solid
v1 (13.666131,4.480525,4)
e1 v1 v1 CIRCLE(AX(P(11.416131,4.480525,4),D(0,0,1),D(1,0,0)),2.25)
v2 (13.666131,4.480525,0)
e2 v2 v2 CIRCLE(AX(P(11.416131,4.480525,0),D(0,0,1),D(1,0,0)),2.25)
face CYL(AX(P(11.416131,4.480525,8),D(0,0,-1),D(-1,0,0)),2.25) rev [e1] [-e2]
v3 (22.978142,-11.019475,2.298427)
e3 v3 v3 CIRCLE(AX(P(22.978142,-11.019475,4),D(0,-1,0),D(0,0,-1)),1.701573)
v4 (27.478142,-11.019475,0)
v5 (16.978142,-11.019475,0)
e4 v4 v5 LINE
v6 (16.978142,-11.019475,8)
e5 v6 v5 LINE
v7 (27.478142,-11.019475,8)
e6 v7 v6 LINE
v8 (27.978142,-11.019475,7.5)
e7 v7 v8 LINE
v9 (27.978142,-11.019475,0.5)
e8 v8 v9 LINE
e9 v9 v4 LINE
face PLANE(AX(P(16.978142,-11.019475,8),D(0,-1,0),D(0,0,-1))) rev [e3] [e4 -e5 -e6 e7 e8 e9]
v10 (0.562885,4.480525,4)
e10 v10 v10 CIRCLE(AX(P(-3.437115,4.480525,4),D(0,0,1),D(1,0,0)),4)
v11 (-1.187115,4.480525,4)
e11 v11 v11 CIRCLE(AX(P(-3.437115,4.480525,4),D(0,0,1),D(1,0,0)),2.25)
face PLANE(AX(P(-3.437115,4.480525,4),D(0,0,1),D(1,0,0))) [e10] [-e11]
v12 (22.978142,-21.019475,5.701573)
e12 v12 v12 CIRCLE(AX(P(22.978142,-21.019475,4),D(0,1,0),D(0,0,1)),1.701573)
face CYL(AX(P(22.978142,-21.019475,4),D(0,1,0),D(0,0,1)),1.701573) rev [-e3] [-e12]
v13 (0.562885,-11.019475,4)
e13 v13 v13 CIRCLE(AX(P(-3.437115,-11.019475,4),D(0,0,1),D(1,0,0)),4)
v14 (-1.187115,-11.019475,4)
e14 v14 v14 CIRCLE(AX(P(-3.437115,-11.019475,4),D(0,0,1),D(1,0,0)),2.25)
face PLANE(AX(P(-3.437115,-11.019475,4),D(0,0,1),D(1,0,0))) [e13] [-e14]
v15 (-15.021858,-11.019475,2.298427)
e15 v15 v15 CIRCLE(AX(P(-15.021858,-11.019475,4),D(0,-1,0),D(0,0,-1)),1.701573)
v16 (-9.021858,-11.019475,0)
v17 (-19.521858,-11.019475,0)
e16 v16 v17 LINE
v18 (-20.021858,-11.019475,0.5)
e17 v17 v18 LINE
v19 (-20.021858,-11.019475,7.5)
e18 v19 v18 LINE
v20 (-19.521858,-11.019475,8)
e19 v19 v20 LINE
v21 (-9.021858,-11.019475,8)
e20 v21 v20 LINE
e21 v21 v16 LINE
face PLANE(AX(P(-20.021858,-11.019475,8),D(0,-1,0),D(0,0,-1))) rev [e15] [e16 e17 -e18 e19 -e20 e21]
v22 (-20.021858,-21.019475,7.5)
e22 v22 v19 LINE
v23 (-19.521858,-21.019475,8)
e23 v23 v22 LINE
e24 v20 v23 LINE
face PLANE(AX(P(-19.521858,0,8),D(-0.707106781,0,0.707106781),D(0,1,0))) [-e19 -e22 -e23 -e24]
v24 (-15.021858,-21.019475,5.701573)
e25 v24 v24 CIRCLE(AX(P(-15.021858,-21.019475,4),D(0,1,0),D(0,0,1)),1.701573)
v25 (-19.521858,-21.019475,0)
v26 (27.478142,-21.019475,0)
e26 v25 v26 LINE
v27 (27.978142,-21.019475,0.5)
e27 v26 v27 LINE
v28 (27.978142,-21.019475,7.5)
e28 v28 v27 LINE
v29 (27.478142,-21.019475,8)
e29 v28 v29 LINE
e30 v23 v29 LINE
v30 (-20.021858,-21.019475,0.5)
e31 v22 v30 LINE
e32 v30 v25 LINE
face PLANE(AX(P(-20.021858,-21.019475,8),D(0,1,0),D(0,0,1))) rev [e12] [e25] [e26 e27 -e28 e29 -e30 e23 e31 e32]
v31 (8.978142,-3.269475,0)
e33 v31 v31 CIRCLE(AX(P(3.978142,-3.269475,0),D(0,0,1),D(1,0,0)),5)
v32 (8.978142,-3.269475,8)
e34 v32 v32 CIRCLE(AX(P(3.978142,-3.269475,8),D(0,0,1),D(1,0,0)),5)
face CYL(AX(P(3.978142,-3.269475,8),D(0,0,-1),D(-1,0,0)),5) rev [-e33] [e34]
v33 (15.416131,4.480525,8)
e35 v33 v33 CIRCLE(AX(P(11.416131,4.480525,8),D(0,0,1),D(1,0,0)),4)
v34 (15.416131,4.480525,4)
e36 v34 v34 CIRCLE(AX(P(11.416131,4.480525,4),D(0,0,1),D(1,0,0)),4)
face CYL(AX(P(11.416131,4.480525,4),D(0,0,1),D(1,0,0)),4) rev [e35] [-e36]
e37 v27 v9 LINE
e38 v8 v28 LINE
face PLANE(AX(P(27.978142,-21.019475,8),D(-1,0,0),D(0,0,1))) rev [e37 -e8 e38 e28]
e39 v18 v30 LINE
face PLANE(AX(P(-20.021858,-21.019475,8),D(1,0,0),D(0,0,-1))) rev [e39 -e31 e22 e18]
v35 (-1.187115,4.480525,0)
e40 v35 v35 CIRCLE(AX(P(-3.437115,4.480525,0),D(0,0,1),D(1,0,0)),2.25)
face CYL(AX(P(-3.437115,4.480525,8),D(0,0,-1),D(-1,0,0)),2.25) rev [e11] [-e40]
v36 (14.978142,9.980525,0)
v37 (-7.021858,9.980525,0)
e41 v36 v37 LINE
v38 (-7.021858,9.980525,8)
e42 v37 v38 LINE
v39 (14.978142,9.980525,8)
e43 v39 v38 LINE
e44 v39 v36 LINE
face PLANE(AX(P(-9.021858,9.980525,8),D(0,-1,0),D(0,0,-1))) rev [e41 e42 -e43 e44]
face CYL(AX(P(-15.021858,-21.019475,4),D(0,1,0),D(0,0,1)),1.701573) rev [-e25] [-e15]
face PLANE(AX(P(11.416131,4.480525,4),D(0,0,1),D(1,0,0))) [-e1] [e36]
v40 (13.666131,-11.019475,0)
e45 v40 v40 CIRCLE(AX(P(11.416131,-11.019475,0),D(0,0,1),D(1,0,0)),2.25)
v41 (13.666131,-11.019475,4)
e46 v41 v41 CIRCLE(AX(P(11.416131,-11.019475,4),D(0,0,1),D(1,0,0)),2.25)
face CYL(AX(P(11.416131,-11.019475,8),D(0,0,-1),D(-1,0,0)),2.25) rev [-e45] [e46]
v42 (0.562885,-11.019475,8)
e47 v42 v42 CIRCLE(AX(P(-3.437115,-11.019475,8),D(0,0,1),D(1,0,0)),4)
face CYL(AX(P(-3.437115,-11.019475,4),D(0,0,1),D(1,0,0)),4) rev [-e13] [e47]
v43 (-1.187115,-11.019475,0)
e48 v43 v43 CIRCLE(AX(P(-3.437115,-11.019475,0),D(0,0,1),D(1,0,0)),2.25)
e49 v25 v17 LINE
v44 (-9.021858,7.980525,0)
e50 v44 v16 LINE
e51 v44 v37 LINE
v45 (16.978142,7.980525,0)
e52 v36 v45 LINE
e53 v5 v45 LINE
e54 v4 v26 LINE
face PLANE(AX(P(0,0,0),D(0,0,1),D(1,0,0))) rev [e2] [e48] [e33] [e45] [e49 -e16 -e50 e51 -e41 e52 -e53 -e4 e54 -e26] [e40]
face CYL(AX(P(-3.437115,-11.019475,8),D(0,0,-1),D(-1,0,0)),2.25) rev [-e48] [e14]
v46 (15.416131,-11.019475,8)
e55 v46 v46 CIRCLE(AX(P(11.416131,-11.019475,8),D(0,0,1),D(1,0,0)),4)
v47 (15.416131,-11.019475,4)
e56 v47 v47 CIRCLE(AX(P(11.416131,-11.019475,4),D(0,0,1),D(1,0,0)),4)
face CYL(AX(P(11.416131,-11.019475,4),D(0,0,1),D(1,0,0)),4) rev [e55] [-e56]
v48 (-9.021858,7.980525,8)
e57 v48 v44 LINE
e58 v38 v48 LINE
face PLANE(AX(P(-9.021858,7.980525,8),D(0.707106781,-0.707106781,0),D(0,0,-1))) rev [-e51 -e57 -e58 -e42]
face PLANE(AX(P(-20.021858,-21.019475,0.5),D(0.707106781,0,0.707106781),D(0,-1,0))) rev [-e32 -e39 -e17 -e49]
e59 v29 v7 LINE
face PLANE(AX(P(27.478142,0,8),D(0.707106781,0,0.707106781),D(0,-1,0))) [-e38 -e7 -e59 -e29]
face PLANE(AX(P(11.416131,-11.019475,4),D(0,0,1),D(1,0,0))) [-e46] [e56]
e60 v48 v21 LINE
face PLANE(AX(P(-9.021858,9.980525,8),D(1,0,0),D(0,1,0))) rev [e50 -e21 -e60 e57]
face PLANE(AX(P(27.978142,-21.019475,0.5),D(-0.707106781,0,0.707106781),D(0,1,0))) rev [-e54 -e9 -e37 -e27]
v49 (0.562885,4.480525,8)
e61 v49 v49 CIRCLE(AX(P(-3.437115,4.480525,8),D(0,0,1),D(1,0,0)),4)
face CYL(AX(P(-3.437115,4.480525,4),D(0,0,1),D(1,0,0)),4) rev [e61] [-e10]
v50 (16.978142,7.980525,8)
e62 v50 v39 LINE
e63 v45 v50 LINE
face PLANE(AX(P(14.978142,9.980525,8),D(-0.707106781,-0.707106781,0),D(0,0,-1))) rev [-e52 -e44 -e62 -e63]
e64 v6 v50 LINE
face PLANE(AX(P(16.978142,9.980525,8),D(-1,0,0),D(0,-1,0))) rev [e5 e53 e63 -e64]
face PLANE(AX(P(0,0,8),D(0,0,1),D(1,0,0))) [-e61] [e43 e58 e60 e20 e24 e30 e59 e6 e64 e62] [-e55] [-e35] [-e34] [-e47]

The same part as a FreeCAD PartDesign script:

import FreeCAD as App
import Part
import Sketcher
from FreeCAD import Vector
Q = App.Units.Quantity


def edges_at(feature, points):
    """Names of the edges that pass closest to the given points."""
    edges = feature.Shape.Edges
    near = lambda p: min(range(len(edges)), key=lambda i: edges[i].distToShape(Part.Vertex(*p))[0])
    return sorted({f"Edge{near(p) + 1}" for p in points})

doc = App.newDocument("Part")
params = doc.addObject("Spreadsheet::Sheet", "Params")
for row, (alias, value) in enumerate([
    ("sketch1_diameter", "10 mm"),
    ("sketch1_diameter2", "4.5 mm"),
    ("sketch1_width", "11 mm"),
    ("sketch1_width2", "26 mm"),
    ("sketch1_height", "21 mm"),
    ("pad1_length", "8 mm"),
    ("sketch2_diameter", "8 mm"),
    ("pocket1_length", "4 mm"),
    ("chamfer_size", "2 mm"),
    ("chamfer2_size", "0.5 mm"),
], start=1):
    params.set(f"A{row}", alias)
    params.set(f"B{row}", "=" + value)
    params.setAlias(f"B{row}", alias)

body = doc.addObject("PartDesign::Body", "Body")

# Sketch on XY plane
sketch1 = body.newObject("Sketcher::SketchObject", "Sketch")
sketch1.AttachmentSupport = (doc.getObject("XY_Plane"), [""])
sketch1.MapMode = "FlatFace"
sketch1.addGeometry(Part.LineSegment(Vector(27.978142, -11.019475, 0), Vector(16.978142, -11.019475, 0)), False)
sketch1.addGeometry(Part.LineSegment(Vector(16.978142, -11.019475, 0), Vector(16.978142, 9.980525, 0)), False)
sketch1.addGeometry(Part.LineSegment(Vector(16.978142, 9.980525, 0), Vector(-9.021858, 9.980525, 0)), False)
sketch1.addGeometry(Part.LineSegment(Vector(-9.021858, 9.980525, 0), Vector(-9.021858, -11.019475, 0)), False)
sketch1.addGeometry(Part.LineSegment(Vector(-9.021858, -11.019475, 0), Vector(-20.021858, -11.019475, 0)), False)
sketch1.addGeometry(Part.LineSegment(Vector(-20.021858, -11.019475, 0), Vector(-20.021858, -21.019475, 0)), False)
sketch1.addGeometry(Part.LineSegment(Vector(-20.021858, -21.019475, 0), Vector(27.978142, -21.019475, 0)), False)
sketch1.addGeometry(Part.LineSegment(Vector(27.978142, -21.019475, 0), Vector(27.978142, -11.019475, 0)), False)
sketch1.addGeometry(Part.Circle(Vector(11.416131, -11.019475, 0), Vector(0, 0, 1), 2.25), False)
sketch1.addGeometry(Part.Circle(Vector(-3.437115, -11.019475, 0), Vector(0, 0, 1), 2.25), False)
sketch1.addGeometry(Part.Circle(Vector(11.416131, 4.480525, 0), Vector(0, 0, 1), 2.25), False)
sketch1.addGeometry(Part.Circle(Vector(3.978142, -3.269475, 0), Vector(0, 0, 1), 5), False)
sketch1.addGeometry(Part.Circle(Vector(-3.437115, 4.480525, 0), Vector(0, 0, 1), 2.25), False)
sketch1.addConstraint(Sketcher.Constraint("Coincident", 0, 2, 1, 1))
sketch1.addConstraint(Sketcher.Constraint("Coincident", 1, 2, 2, 1))
sketch1.addConstraint(Sketcher.Constraint("Coincident", 2, 2, 3, 1))
sketch1.addConstraint(Sketcher.Constraint("Coincident", 3, 2, 4, 1))
sketch1.addConstraint(Sketcher.Constraint("Coincident", 4, 2, 5, 1))
sketch1.addConstraint(Sketcher.Constraint("Coincident", 5, 2, 6, 1))
sketch1.addConstraint(Sketcher.Constraint("Coincident", 6, 2, 7, 1))
sketch1.addConstraint(Sketcher.Constraint("Coincident", 7, 2, 0, 1))
sketch1.addConstraint(Sketcher.Constraint("Horizontal", 0))
sketch1.addConstraint(Sketcher.Constraint("Vertical", 1))
sketch1.addConstraint(Sketcher.Constraint("Horizontal", 2))
sketch1.addConstraint(Sketcher.Constraint("Vertical", 3))
sketch1.addConstraint(Sketcher.Constraint("Horizontal", 4))
sketch1.addConstraint(Sketcher.Constraint("Vertical", 5))
sketch1.addConstraint(Sketcher.Constraint("Horizontal", 6))
sketch1.addConstraint(Sketcher.Constraint("Vertical", 7))
sketch1.addConstraint(Sketcher.Constraint("Equal", 8, 9))
sketch1.addConstraint(Sketcher.Constraint("Equal", 9, 10))
sketch1.addConstraint(Sketcher.Constraint("Equal", 10, 12))
sketch1.addConstraint(Sketcher.Constraint("Horizontal", 8, 3, 9, 3))
sketch1.addConstraint(Sketcher.Constraint("Horizontal", 10, 3, 12, 3))
sketch1.addConstraint(Sketcher.Constraint("Horizontal", 9, 3, 0, 2))
sketch1.addConstraint(Sketcher.Constraint("Horizontal", 0, 2, 3, 2))
sketch1.addConstraint(Sketcher.Constraint("Vertical", 8, 3, 10, 3))
sketch1.addConstraint(Sketcher.Constraint("Vertical", 9, 3, 12, 3))
sketch1.addConstraint(Sketcher.Constraint("Equal", 0, 4))
sketch1.addConstraint(Sketcher.Constraint("Diameter", 11, Q("10 mm")))
sketch1.addConstraint(Sketcher.Constraint("Diameter", 8, Q("4.5 mm")))
sketch1.addConstraint(Sketcher.Constraint("DistanceX", 0, 2, 0, 1, Q("11 mm")))
sketch1.addConstraint(Sketcher.Constraint("DistanceX", 2, 2, 2, 1, Q("26 mm")))
sketch1.addConstraint(Sketcher.Constraint("DistanceY", 1, 1, 1, 2, Q("21 mm")))
sketch1.addConstraint(Sketcher.Constraint("DistanceY", 5, 2, 5, 1, Q("10 mm")))
sketch1.addConstraint(Sketcher.Constraint("DistanceX", 11, 3, 0, 2, Q("13 mm")))
sketch1.addConstraint(Sketcher.Constraint("DistanceY", 8, 3, 10, 3, Q("15.5 mm")))
sketch1.addConstraint(Sketcher.Constraint("DistanceY", 9, 3, 11, 3, Q("7.75 mm")))
sketch1.addConstraint(Sketcher.Constraint("DistanceX", -1, 1, 8, 3, Q("11.416131 mm")))
sketch1.addConstraint(Sketcher.Constraint("DistanceX", 11, 3, 8, 3, Q("7.437989 mm")))
sketch1.addConstraint(Sketcher.Constraint("DistanceY", 8, 3, -1, 1, Q("11.019475 mm")))
sketch1.addConstraint(Sketcher.Constraint("DistanceX", 9, 3, -1, 1, Q("3.437115 mm")))
sketch1.setExpression("Constraints[26]", "Params.sketch1_diameter")
sketch1.setExpression("Constraints[27]", "Params.sketch1_diameter2")
sketch1.setExpression("Constraints[28]", "Params.sketch1_width")
sketch1.setExpression("Constraints[29]", "Params.sketch1_width2")
sketch1.setExpression("Constraints[30]", "Params.sketch1_height")
pad1 = body.newObject("PartDesign::Pad", "Pad")
pad1.Profile = sketch1
pad1.setExpression("Length", "Params.pad1_length")

# Sketch on XY plane
sketch2 = body.newObject("Sketcher::SketchObject", "Sketch001")
sketch2.AttachmentSupport = (doc.getObject("XY_Plane"), [""])
sketch2.MapMode = "FlatFace"
sketch2.AttachmentOffset = App.Placement(Vector(0, 0, 8), App.Rotation())
sketch2.addGeometry(Part.Circle(Vector(-3.437115, 4.480525, 0), Vector(0, 0, 1), 4), False)
sketch2.addGeometry(Part.Circle(Vector(11.416131, 4.480525, 0), Vector(0, 0, 1), 4), False)
sketch2.addGeometry(Part.Circle(Vector(-3.437115, -11.019475, 0), Vector(0, 0, 1), 4), False)
sketch2.addGeometry(Part.Circle(Vector(11.416131, -11.019475, 0), Vector(0, 0, 1), 4), False)
sketch2.addConstraint(Sketcher.Constraint("Equal", 0, 1))
sketch2.addConstraint(Sketcher.Constraint("Equal", 1, 2))
sketch2.addConstraint(Sketcher.Constraint("Equal", 2, 3))
sketch2.addConstraint(Sketcher.Constraint("Horizontal", 0, 3, 1, 3))
sketch2.addConstraint(Sketcher.Constraint("Horizontal", 2, 3, 3, 3))
sketch2.addConstraint(Sketcher.Constraint("Vertical", 0, 3, 2, 3))
sketch2.addConstraint(Sketcher.Constraint("Vertical", 1, 3, 3, 3))
sketch2.addConstraint(Sketcher.Constraint("Diameter", 0, Q("8 mm")))
sketch2.addConstraint(Sketcher.Constraint("DistanceY", 2, 3, 0, 3, Q("15.5 mm")))
sketch2.addConstraint(Sketcher.Constraint("DistanceX", -1, 1, 1, 3, Q("11.416131 mm")))
sketch2.addConstraint(Sketcher.Constraint("DistanceX", 0, 3, -1, 1, Q("3.437115 mm")))
sketch2.addConstraint(Sketcher.Constraint("DistanceY", -1, 1, 0, 3, Q("4.480525 mm")))
sketch2.setExpression("Constraints[7]", "Params.sketch2_diameter")
pocket1 = body.newObject("PartDesign::Pocket", "Pocket")
pocket1.Profile = sketch2
pocket1.setExpression("Length", "Params.pocket1_length")

# Sketch on XZ plane
sketch3 = body.newObject("Sketcher::SketchObject", "Sketch002")
sketch3.AttachmentSupport = (doc.getObject("XZ_Plane"), [""])
sketch3.MapMode = "FlatFace"
sketch3.AttachmentOffset = App.Placement(Vector(0, 0, -9.980525), App.Rotation())
sketch3.addGeometry(Part.Circle(Vector(-15.021858, 4, 0), Vector(0, 0, 1), 1.701573), False)
sketch3.addGeometry(Part.Circle(Vector(22.978142, 4, 0), Vector(0, 0, 1), 1.701573), False)
sketch3.addConstraint(Sketcher.Constraint("Equal", 0, 1))
sketch3.addConstraint(Sketcher.Constraint("Horizontal", 0, 3, 1, 3))
sketch3.addConstraint(Sketcher.Constraint("DistanceY", -1, 1, 0, 3, Q("4 mm")))
sketch3.addConstraint(Sketcher.Constraint("DistanceX", 0, 3, 1, 3, Q("38 mm")))
sketch3.addConstraint(Sketcher.Constraint("Diameter", 0, Q("3.403145 mm")))
sketch3.addConstraint(Sketcher.Constraint("DistanceX", 0, 3, -1, 1, Q("15.021858 mm")))
pocket2 = body.newObject("PartDesign::Pocket", "Pocket001")
pocket2.Profile = sketch3
pocket2.Type = "ThroughAll"
pocket2.Reversed = True
doc.recompute()

chamfer = body.newObject("PartDesign::Chamfer", "Chamfer")
chamfer.Base = (pocket2, edges_at(pocket2, [(-9.022, 9.981, 4), (16.978, 9.981, 4)]))
chamfer.setExpression("Size", "Params.chamfer_size")
doc.recompute()

chamfer2 = body.newObject("PartDesign::Chamfer", "Chamfer001")
chamfer2.Base = (chamfer, edges_at(chamfer, [
    (-20.022, -16.019, 8),
    (27.978, -16.019, 8),
    (27.978, -16.019, 0),
    (-20.022, -16.019, 0),
]))
chamfer2.setExpression("Size", "Params.chamfer2_size")

doc.recompute()
